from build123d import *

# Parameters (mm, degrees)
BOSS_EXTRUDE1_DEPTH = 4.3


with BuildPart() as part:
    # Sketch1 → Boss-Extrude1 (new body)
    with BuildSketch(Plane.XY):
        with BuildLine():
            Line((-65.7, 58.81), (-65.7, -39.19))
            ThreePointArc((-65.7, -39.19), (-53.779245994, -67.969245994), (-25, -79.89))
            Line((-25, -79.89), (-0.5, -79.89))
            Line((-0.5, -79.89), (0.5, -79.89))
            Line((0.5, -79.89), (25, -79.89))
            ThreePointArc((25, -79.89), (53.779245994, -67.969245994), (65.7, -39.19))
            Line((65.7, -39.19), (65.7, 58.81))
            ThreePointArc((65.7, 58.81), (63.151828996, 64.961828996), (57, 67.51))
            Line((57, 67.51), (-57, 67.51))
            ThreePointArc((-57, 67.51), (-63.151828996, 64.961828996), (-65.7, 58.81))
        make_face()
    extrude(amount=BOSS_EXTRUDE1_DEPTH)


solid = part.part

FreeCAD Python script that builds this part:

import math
import FreeCAD as App
import Part
import Sketcher
Q = App.Units.Quantity

doc = App.newDocument("Part")
params = doc.addObject("Spreadsheet::Sheet", "Params")
for row, (alias, value) in enumerate([
    ("sketch1_radius", "40.7 mm"),
    ("sketch1_radius2", "8.7 mm"),
    ("sketch1_width", "50 mm"),
    ("sketch1_height", "98 mm"),
    ("pad1_length", "4.3 mm"),
], start=1):
    params.set(f"A{row}", alias)
    params.set(f"B{row}", "=" + value)
    params.setAlias(f"B{row}", alias)

body = doc.addObject("PartDesign::Body", "Body")

sketch1 = body.newObject("Sketcher::SketchObject", "Sketch")
sketch1.AttachmentSupport = (doc.getObject("XY_Plane"), [""])
sketch1.MapMode = "FlatFace"
sketch1.addGeometry(Part.LineSegment(App.Vector(-66, 59, 0), App.Vector(-66, -39, 0)), False)
sketch1.addGeometry(Part.ArcOfCircle(Part.Circle(App.Vector(-25, -39, 0), App.Vector(0, 0, 1), 41), math.radians(-180), math.radians(-90)), False)
sketch1.addGeometry(Part.LineSegment(App.Vector(-25, -80, 0), App.Vector(25, -80, 0)), False)
sketch1.addGeometry(Part.ArcOfCircle(Part.Circle(App.Vector(25, -39, 0), App.Vector(0, 0, 1), 41), math.radians(-90), math.radians(0)), False)
sketch1.addGeometry(Part.LineSegment(App.Vector(66, -39, 0), App.Vector(66, 59, 0)), False)
sketch1.addGeometry(Part.ArcOfCircle(Part.Circle(App.Vector(57, 59, 0), App.Vector(0, 0, 1), 9), math.radians(0), math.radians(90)), False)
sketch1.addGeometry(Part.LineSegment(App.Vector(57, 68, 0), App.Vector(-57, 68, 0)), False)
sketch1.addGeometry(Part.ArcOfCircle(Part.Circle(App.Vector(-57, 59, 0), App.Vector(0, 0, 1), 9), math.radians(90), math.radians(180)), False)
sketch1.addConstraint(Sketcher.Constraint("Tangent", 0, 2, 1, 1))
sketch1.addConstraint(Sketcher.Constraint("Tangent", 1, 2, 2, 1))
sketch1.addConstraint(Sketcher.Constraint("Tangent", 2, 2, 3, 1))
sketch1.addConstraint(Sketcher.Constraint("Tangent", 3, 2, 4, 1))
sketch1.addConstraint(Sketcher.Constraint("Tangent", 4, 2, 5, 1))
sketch1.addConstraint(Sketcher.Constraint("Tangent", 5, 2, 6, 1))
sketch1.addConstraint(Sketcher.Constraint("Tangent", 6, 2, 7, 1))
sketch1.addConstraint(Sketcher.Constraint("Tangent", 7, 2, 0, 1))
sketch1.addConstraint(Sketcher.Constraint("Vertical", 0))
sketch1.addConstraint(Sketcher.Constraint("Horizontal", 2))
sketch1.addConstraint(Sketcher.Constraint("Vertical", 4))
sketch1.addConstraint(Sketcher.Constraint("Horizontal", 6))
sketch1.addConstraint(Sketcher.Constraint("Equal", 1, 3))
sketch1.addConstraint(Sketcher.Constraint("Equal", 5, 7))
sketch1.addConstraint(Sketcher.Constraint("Radius", 1, Q("40.7 mm")))
sketch1.addConstraint(Sketcher.Constraint("Radius", 5, Q("8.7 mm")))
sketch1.addConstraint(Sketcher.Constraint("DistanceX", 2, 1, 2, 2, Q("50 mm")))
sketch1.addConstraint(Sketcher.Constraint("DistanceY", 0, 2, 0, 1, Q("98 mm")))
sketch1.addConstraint(Sketcher.Constraint("DistanceX", 1, 3, -1, 1, Q("25 mm")))
sketch1.addConstraint(Sketcher.Constraint("DistanceY", 1, 3, -1, 1, Q("39.19 mm")))
sketch1.setExpression("Constraints[14]", "Params.sketch1_radius")
sketch1.setExpression("Constraints[15]", "Params.sketch1_radius2")
sketch1.setExpression("Constraints[16]", "Params.sketch1_width")
sketch1.setExpression("Constraints[17]", "Params.sketch1_height")
pad1 = body.newObject("PartDesign::Pad", "Pad")
pad1.Profile = sketch1
pad1.setExpression("Length", "Params.pad1_length")

doc.recompute()
